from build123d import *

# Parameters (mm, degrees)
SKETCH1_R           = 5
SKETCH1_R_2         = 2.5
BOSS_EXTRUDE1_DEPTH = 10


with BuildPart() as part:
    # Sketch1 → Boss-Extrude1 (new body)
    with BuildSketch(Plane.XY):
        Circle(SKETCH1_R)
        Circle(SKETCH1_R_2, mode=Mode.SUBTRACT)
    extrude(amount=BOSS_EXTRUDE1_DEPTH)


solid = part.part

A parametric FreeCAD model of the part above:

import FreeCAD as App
import Part
import Sketcher

V = App.Vector

doc = App.newDocument("Part")
params = doc.addObject("Spreadsheet::Sheet", "Params")
for row, (alias, value) in enumerate([
    ("sketch1_diameter", "10 mm"),
    ("sketch1_diameter2", "5 mm"),
    ("pad1_length", "10 mm"),
], start=1):
    params.set(f"A{row}", alias)
    params.set(f"B{row}", "=" + value)
    params.setAlias(f"B{row}", alias)

body = doc.addObject("PartDesign::Body", "Body")

sketch1 = doc.addObject("Sketcher::SketchObject", "Sketch")
body.addObject(sketch1)
sketch1.AttachmentSupport = (doc.XY_Plane, [""])
sketch1.MapMode = "FlatFace"
sketch1.addGeometry(Part.Circle(V(0, 0, 0), V(0, 0, 1), 5), False)
sketch1.addGeometry(Part.Circle(V(0, 0, 0), V(0, 0, 1), 2.5), False)
sketch1.addConstraint(Sketcher.Constraint("Coincident", 0, 3, -1, 1))
sketch1.addConstraint(Sketcher.Constraint("Coincident", 1, 3, -1, 1))
sketch1.addConstraint(Sketcher.Constraint("Diameter", 0, 10.0))
sketch1.addConstraint(Sketcher.Constraint("Diameter", 1, 5.0))
sketch1.setExpression("Constraints[2]", "Params.sketch1_diameter")
sketch1.setExpression("Constraints[3]", "Params.sketch1_diameter2")
pad1 = doc.addObject("PartDesign::Pad", "Pad")
body.addObject(pad1)
pad1.Profile = sketch1
pad1.setExpression("Length", "Params.pad1_length")

doc.recompute()
